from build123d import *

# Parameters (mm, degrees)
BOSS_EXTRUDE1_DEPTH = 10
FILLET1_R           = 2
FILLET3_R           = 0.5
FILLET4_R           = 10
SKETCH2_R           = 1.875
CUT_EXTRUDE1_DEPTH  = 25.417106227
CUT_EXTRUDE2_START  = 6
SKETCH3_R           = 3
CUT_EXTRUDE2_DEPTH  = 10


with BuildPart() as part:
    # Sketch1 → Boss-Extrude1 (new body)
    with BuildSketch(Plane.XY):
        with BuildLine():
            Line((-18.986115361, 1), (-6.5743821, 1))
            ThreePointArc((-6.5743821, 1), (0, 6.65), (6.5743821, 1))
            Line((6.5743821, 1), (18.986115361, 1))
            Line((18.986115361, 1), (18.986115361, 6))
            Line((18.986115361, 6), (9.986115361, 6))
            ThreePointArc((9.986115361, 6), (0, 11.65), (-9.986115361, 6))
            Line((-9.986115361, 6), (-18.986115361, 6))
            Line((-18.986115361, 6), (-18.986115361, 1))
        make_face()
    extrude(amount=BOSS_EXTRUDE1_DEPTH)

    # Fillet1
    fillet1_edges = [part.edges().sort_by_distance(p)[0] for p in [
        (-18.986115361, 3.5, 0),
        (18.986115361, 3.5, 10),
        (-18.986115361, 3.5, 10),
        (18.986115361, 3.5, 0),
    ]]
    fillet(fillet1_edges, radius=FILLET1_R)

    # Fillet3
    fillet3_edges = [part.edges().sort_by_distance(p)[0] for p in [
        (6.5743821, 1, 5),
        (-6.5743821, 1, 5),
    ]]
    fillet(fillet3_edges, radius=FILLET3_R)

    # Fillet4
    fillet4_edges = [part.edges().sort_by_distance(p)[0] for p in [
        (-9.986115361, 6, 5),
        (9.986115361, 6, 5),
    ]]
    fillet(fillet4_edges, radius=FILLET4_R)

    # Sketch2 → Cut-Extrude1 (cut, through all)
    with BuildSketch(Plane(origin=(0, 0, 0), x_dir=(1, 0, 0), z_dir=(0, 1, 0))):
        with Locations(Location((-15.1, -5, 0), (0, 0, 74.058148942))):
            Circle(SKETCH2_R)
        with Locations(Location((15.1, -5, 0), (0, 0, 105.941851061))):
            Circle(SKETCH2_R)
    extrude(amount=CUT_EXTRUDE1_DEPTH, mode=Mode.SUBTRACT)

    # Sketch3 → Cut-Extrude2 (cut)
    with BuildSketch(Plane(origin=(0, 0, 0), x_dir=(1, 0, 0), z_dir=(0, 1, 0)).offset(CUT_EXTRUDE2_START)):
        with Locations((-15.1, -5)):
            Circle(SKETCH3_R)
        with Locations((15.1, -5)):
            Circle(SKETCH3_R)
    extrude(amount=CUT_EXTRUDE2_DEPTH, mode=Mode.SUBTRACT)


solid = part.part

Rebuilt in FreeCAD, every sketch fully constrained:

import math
import FreeCAD as App
import Part
import Sketcher

V = App.Vector


def edges_at(feature, points):
    """Names of the edges that pass closest to the given points."""
    edges = feature.Shape.Edges
    near = lambda p: min(range(len(edges)), key=lambda i: edges[i].distToShape(Part.Vertex(*p))[0])
    return sorted({f"Edge{near(p) + 1}" for p in points})

doc = App.newDocument("Part")
params = doc.addObject("Spreadsheet::Sheet", "Params")
for row, (alias, value) in enumerate([
    ("sketch1_width", "9 mm"),
    ("sketch1_height", "5 mm"),
    ("sketch1_radius", "6.65 mm"),
    ("sketch1_radius2", "11.65 mm"),
    ("pad1_length", "10 mm"),
    ("fillet_radius", "2 mm"),
    ("fillet2_radius", "0.5 mm"),
    ("fillet3_radius", "10 mm"),
    ("sketch2_diameter", "3.75 mm"),
    ("sketch3_diameter", "6 mm"),
    ("pocket2_length", "10 mm"),
], start=1):
    params.set(f"A{row}", alias)
    params.set(f"B{row}", "=" + value)
    params.setAlias(f"B{row}", alias)

body = doc.addObject("PartDesign::Body", "Body")

# Sketch on XY plane
sketch1 = body.newObject("Sketcher::SketchObject", "Sketch")
sketch1.AttachmentSupport = (doc.getObject("XY_Plane"), [""])
sketch1.MapMode = "FlatFace"
sketch1.addGeometry(Part.LineSegment(V(-19, 1, 0), V(-7, 1, 0)), False)
sketch1.addGeometry(Part.ArcOfCircle(Part.Circle(V(0, 0, 0), V(0, 0, 1), 7), math.radians(9), math.radians(171)), False)
sketch1.addGeometry(Part.LineSegment(V(7, 1, 0), V(19, 1, 0)), False)
sketch1.addGeometry(Part.LineSegment(V(19, 1, 0), V(19, 6, 0)), False)
sketch1.addGeometry(Part.LineSegment(V(19, 6, 0), V(10, 6, 0)), False)
sketch1.addGeometry(Part.ArcOfCircle(Part.Circle(V(0, 0, 0), V(0, 0, 1), 12), math.radians(31), math.radians(149)), False)
sketch1.addGeometry(Part.LineSegment(V(-10, 6, 0), V(-19, 6, 0)), False)
sketch1.addGeometry(Part.LineSegment(V(-19, 6, 0), V(-19, 1, 0)), False)
sketch1.addConstraint(Sketcher.Constraint("Coincident", 0, 2, 1, 2))
sketch1.addConstraint(Sketcher.Constraint("Coincident", 1, 1, 2, 1))
sketch1.addConstraint(Sketcher.Constraint("Coincident", 2, 2, 3, 1))
sketch1.addConstraint(Sketcher.Constraint("Coincident", 3, 2, 4, 1))
sketch1.addConstraint(Sketcher.Constraint("Coincident", 4, 2, 5, 1))
sketch1.addConstraint(Sketcher.Constraint("Coincident", 5, 2, 6, 1))
sketch1.addConstraint(Sketcher.Constraint("Coincident", 6, 2, 7, 1))
sketch1.addConstraint(Sketcher.Constraint("Coincident", 7, 2, 0, 1))
sketch1.addConstraint(Sketcher.Constraint("Horizontal", 0))
sketch1.addConstraint(Sketcher.Constraint("Horizontal", 2))
sketch1.addConstraint(Sketcher.Constraint("Vertical", 3))
sketch1.addConstraint(Sketcher.Constraint("Horizontal", 4))
sketch1.addConstraint(Sketcher.Constraint("Horizontal", 6))
sketch1.addConstraint(Sketcher.Constraint("Vertical", 7))
sketch1.addConstraint(Sketcher.Constraint("Coincident", 1, 3, -1, 1))
sketch1.addConstraint(Sketcher.Constraint("Coincident", 5, 3, -1, 1))
sketch1.addConstraint(Sketcher.Constraint("Symmetric", 3, 2, 6, 2, -2))
sketch1.addConstraint(Sketcher.Constraint("Horizontal", 0, 2, 1, 1))
sketch1.addConstraint(Sketcher.Constraint("DistanceX", 4, 2, 4, 1, 9.0))
sketch1.addConstraint(Sketcher.Constraint("DistanceY", 3, 1, 3, 2, 5.0))
sketch1.addConstraint(Sketcher.Constraint("Radius", 1, 6.65))
sketch1.addConstraint(Sketcher.Constraint("Radius", 5, 11.65))
sketch1.addConstraint(Sketcher.Constraint("DistanceY", -1, 1, 0, 2, 1.0))
sketch1.setExpression("Constraints[18]", "Params.sketch1_width")
sketch1.setExpression("Constraints[19]", "Params.sketch1_height")
sketch1.setExpression("Constraints[20]", "Params.sketch1_radius")
sketch1.setExpression("Constraints[21]", "Params.sketch1_radius2")
pad1 = body.newObject("PartDesign::Pad", "Pad")
pad1.Profile = sketch1
pad1.setExpression("Length", "Params.pad1_length")
doc.recompute()

fillet = body.newObject("PartDesign::Fillet", "Fillet")
fillet.Base = (pad1, edges_at(pad1, [
    (-18.986, 3.5, 0),
    (18.986, 3.5, 10),
    (-18.986, 3.5, 10),
    (18.986, 3.5, 0),
]))
fillet.setExpression("Radius", "Params.fillet_radius")
doc.recompute()

fillet2 = body.newObject("PartDesign::Fillet", "Fillet001")
fillet2.Base = (fillet, edges_at(fillet, [(6.574, 1, 5), (-6.574, 1, 5)]))
fillet2.setExpression("Radius", "Params.fillet2_radius")
doc.recompute()

fillet3 = body.newObject("PartDesign::Fillet", "Fillet002")
fillet3.Base = (fillet2, edges_at(fillet2, [(-9.986, 6, 5), (9.986, 6, 5)]))
fillet3.setExpression("Radius", "Params.fillet3_radius")

# Sketch on XZ plane
sketch2 = body.newObject("Sketcher::SketchObject", "Sketch001")
sketch2.AttachmentSupport = (doc.getObject("XZ_Plane"), [""])
sketch2.MapMode = "FlatFace"
sketch2.addGeometry(Part.Circle(V(-15.1, 5, 0), V(0, 0, 1), 1.9), False)
sketch2.addGeometry(Part.Circle(V(15.1, 5, 0), V(0, 0, 1), 1.9), False)
sketch2.addConstraint(Sketcher.Constraint("Equal", 0, 1))
sketch2.addConstraint(Sketcher.Constraint("Symmetric", 0, 3, 1, 3, -2))
sketch2.addConstraint(Sketcher.Constraint("Diameter", 0, 3.75))
sketch2.addConstraint(Sketcher.Constraint("DistanceY", -1, 1, 0, 3, 5.0))
sketch2.addConstraint(Sketcher.Constraint("DistanceX", 0, 3, -1, 1, 15.1))
sketch2.setExpression("Constraints[2]", "Params.sketch2_diameter")
pocket1 = body.newObject("PartDesign::Pocket", "Pocket")
pocket1.Profile = sketch2
pocket1.Type = "ThroughAll"

# Sketch on XZ plane
sketch3 = body.newObject("Sketcher::SketchObject", "Sketch002")
sketch3.AttachmentSupport = (doc.getObject("XZ_Plane"), [""])
sketch3.MapMode = "FlatFace"
sketch3.AttachmentOffset = App.Placement(V(0, 0, -6), App.Rotation())
sketch3.addGeometry(Part.Circle(V(-15.1, 5, 0), V(0, 0, 1), 3), False)
sketch3.addGeometry(Part.Circle(V(15.1, 5, 0), V(0, 0, 1), 3), False)
sketch3.addConstraint(Sketcher.Constraint("Equal", 0, 1))
sketch3.addConstraint(Sketcher.Constraint("Symmetric", 0, 3, 1, 3, -2))
sketch3.addConstraint(Sketcher.Constraint("Diameter", 0, 6.0))
sketch3.addConstraint(Sketcher.Constraint("DistanceY", -1, 1, 0, 3, 5.0))
sketch3.addConstraint(Sketcher.Constraint("DistanceX", 0, 3, -1, 1, 15.1))
sketch3.setExpression("Constraints[2]", "Params.sketch3_diameter")
pocket2 = body.newObject("PartDesign::Pocket", "Pocket001")
pocket2.Profile = sketch3
pocket2.setExpression("Length", "Params.pocket2_length")

doc.recompute()
